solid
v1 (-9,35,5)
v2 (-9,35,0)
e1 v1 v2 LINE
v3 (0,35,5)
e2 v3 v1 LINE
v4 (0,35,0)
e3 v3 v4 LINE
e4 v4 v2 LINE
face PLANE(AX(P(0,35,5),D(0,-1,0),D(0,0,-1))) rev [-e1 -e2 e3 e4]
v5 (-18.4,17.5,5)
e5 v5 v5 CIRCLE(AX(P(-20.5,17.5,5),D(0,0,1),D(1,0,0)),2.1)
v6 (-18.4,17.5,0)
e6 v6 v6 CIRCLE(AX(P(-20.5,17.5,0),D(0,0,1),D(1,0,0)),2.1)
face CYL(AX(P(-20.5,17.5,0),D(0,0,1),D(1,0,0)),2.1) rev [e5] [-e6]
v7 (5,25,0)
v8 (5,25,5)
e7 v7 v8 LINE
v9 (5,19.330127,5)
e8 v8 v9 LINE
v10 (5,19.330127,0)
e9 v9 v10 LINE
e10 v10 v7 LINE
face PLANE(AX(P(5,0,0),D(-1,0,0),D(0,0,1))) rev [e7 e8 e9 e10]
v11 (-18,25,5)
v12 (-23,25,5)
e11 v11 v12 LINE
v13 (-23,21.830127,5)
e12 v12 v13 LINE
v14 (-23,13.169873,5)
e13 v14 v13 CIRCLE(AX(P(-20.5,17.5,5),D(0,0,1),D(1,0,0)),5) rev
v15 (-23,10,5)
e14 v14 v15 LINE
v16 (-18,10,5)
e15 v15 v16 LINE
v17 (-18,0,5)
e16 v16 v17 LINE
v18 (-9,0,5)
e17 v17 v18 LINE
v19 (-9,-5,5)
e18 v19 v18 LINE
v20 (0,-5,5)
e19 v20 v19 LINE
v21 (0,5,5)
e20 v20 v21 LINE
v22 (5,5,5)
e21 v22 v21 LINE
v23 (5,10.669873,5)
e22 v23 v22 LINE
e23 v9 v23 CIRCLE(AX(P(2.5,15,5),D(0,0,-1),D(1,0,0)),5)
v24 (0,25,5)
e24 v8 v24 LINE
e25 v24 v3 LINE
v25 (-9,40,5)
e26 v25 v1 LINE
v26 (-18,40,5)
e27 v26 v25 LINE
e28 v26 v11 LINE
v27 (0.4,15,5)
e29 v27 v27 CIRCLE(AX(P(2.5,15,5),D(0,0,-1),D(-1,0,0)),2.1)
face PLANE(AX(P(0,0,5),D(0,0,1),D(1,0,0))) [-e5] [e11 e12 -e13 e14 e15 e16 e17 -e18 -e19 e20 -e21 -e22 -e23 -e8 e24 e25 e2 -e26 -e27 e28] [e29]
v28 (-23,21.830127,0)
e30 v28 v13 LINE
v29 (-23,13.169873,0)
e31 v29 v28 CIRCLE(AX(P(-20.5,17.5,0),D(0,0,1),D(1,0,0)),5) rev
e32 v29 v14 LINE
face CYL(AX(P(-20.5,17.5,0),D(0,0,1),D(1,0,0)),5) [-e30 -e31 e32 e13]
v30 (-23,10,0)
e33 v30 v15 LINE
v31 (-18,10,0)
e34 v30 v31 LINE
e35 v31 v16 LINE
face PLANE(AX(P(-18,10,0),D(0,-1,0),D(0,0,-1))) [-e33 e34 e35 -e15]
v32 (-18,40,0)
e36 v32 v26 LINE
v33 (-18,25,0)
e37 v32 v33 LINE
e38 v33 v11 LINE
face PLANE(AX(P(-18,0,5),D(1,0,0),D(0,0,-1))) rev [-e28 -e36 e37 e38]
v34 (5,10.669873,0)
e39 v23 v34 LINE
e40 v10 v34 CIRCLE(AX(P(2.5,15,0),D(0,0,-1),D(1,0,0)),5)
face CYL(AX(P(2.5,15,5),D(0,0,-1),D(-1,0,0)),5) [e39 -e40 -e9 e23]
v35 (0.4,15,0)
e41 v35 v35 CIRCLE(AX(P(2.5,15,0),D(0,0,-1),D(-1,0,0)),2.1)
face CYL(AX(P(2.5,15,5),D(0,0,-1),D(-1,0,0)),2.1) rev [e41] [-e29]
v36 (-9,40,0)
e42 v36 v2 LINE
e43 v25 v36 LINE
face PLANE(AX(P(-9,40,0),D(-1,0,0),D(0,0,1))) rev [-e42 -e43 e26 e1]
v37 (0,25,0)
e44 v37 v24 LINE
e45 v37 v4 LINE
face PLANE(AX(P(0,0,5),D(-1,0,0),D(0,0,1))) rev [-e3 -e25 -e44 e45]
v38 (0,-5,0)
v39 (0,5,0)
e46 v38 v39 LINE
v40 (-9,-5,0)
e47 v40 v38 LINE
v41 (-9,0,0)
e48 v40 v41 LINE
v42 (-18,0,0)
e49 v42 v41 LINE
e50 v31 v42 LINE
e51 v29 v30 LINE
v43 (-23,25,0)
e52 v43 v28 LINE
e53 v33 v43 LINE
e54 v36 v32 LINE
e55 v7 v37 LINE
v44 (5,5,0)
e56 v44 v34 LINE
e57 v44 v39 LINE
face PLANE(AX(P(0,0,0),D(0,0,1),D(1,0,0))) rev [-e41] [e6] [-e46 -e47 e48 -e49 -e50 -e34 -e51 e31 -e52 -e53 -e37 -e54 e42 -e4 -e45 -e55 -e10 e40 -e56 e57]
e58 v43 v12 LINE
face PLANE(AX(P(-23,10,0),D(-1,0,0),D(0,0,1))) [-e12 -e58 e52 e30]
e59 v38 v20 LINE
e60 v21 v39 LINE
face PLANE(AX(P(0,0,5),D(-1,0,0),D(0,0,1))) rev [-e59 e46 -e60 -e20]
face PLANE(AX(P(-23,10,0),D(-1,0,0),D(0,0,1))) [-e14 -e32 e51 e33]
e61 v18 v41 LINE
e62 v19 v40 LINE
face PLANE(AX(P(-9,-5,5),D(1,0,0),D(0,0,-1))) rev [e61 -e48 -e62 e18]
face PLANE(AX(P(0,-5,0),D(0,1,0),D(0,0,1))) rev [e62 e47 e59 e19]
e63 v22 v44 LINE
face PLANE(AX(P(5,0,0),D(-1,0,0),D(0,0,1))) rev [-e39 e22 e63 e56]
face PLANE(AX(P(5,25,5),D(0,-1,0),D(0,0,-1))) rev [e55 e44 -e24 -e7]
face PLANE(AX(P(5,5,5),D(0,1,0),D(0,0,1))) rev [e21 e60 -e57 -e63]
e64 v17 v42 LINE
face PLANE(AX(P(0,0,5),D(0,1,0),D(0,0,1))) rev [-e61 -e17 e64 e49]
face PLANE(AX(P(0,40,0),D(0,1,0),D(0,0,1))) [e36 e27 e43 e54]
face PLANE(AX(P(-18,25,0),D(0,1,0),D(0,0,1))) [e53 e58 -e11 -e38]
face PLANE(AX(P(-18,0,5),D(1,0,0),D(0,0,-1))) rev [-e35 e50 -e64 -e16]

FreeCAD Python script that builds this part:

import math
import FreeCAD as App
import Part
import Sketcher
Q = App.Units.Quantity


def add_polygon(sketch, points):
    """Adds a closed chain of lines whose ends are joined by coincident constraints."""
    first, n = sketch.GeometryCount, len(points)
    for a, b in zip(points, points[1:] + points[:1]):
        sketch.addGeometry(Part.LineSegment(App.Vector(*a, 0), App.Vector(*b, 0)), False)
    for i in range(n):
        sketch.addConstraint(Sketcher.Constraint("Coincident", first + i, 2, first + (i + 1) % n, 1))

doc = App.newDocument("Part")
body = doc.addObject("PartDesign::Body", "Body")

# Sketch on XY plane
sketch1 = body.newObject("Sketcher::SketchObject", "Sketch")
sketch1.AttachmentSupport = (doc.getObject("XY_Plane"), [""])
sketch1.MapMode = "FlatFace"
add_polygon(sketch1, [(-18, 35), (-18, 0), (0, 0), (0, 35)])  # lines 0-3
sketch1.addConstraint([
    Sketcher.Constraint("Vertical", 0),
    Sketcher.Constraint("Horizontal", 1),
    Sketcher.Constraint("Vertical", 2),
    Sketcher.Constraint("Horizontal", 3),
    Sketcher.Constraint("Coincident", 1, 2, -1, 1),
    Sketcher.Constraint("DistanceX", 1, 1, 1, 2, Q("18 mm")),
    Sketcher.Constraint("DistanceY", 0, 2, 0, 1, Q("35 mm")),
])
pad1 = body.newObject("PartDesign::Pad", "Pad")
pad1.Profile = sketch1
pad1.Length = 5

# Sketch on YZ plane
sketch2 = body.newObject("Sketcher::SketchObject", "Sketch001")
sketch2.AttachmentSupport = (doc.getObject("YZ_Plane"), [""])
sketch2.MapMode = "FlatFace"
add_polygon(sketch2, [(25, 5), (5, 5), (5, 0), (25, 0)])  # lines 0-3
sketch2.addConstraint([
    Sketcher.Constraint("Horizontal", 0),
    Sketcher.Constraint("Vertical", 1),
    Sketcher.Constraint("Horizontal", 2),
    Sketcher.Constraint("Vertical", 3),
    Sketcher.Constraint("PointOnObject", 1, 2, -1),
    Sketcher.Constraint("DistanceX", 0, 2, 0, 1, Q("20 mm")),
    Sketcher.Constraint("DistanceY", 1, 2, 1, 1, Q("5 mm")),
    Sketcher.Constraint("DistanceX", -1, 1, 0, 2, Q("5 mm")),
])
pad2 = body.newObject("PartDesign::Pad", "Pad001")
pad2.Profile = sketch2
pad2.Length = 5

# Sketch on XZ plane
sketch3 = body.newObject("Sketcher::SketchObject", "Sketch002")
sketch3.AttachmentSupport = (doc.getObject("XZ_Plane"), [""])
sketch3.MapMode = "FlatFace"
add_polygon(sketch3, [(-9, 5), (-9, 0), (0, 0), (0, 5)])  # lines 0-3
sketch3.addConstraint([
    Sketcher.Constraint("Vertical", 0),
    Sketcher.Constraint("Horizontal", 1),
    Sketcher.Constraint("Vertical", 2),
    Sketcher.Constraint("Horizontal", 3),
    Sketcher.Constraint("Coincident", 1, 2, -1, 1),
    Sketcher.Constraint("DistanceX", 1, 1, 1, 2, Q("9 mm")),
    Sketcher.Constraint("DistanceY", 0, 2, 0, 1, Q("5 mm")),
])
pad3 = body.newObject("PartDesign::Pad", "Pad002")
pad3.Profile = sketch3
pad3.Length = 5

# Sketch on XY plane
sketch4 = body.newObject("Sketcher::SketchObject", "Sketch003")
sketch4.AttachmentSupport = (doc.getObject("XY_Plane"), [""])
sketch4.MapMode = "FlatFace"
sketch4.AttachmentOffset = App.Placement(App.Vector(0, 0, 5), App.Rotation())
add_polygon(sketch4, [(-23, 25), (-23, 10), (-18, 10), (-18, 25)])  # lines 0-3
sketch4.addConstraint([
    Sketcher.Constraint("Vertical", 0),
    Sketcher.Constraint("Horizontal", 1),
    Sketcher.Constraint("Vertical", 2),
    Sketcher.Constraint("Horizontal", 3),
    Sketcher.Constraint("DistanceX", 1, 1, 1, 2, Q("5 mm")),
    Sketcher.Constraint("DistanceY", 0, 2, 0, 1, Q("15 mm")),
    Sketcher.Constraint("DistanceX", 0, 2, -1, 1, Q("23 mm")),
    Sketcher.Constraint("DistanceY", -1, 1, 0, 2, Q("10 mm")),
])
pad4 = body.newObject("PartDesign::Pad", "Pad003")
pad4.Profile = sketch4
pad4.Length = 5
pad4.Reversed = True

# Sketch on XZ plane
sketch5 = body.newObject("Sketcher::SketchObject", "Sketch004")
sketch5.AttachmentSupport = (doc.getObject("XZ_Plane"), [""])
sketch5.MapMode = "FlatFace"
sketch5.AttachmentOffset = App.Placement(App.Vector(0, 0, -35), App.Rotation())
add_polygon(sketch5, [(-18, 0), (-18, 5), (-9, 5), (-9, 0)])  # lines 0-3
sketch5.addConstraint([
    Sketcher.Constraint("Vertical", 0),
    Sketcher.Constraint("Horizontal", 1),
    Sketcher.Constraint("Vertical", 2),
    Sketcher.Constraint("Horizontal", 3),
    Sketcher.Constraint("PointOnObject", 2, 2, -1),
    Sketcher.Constraint("DistanceX", 1, 1, 1, 2, Q("9 mm")),
    Sketcher.Constraint("DistanceY", 0, 1, 0, 2, Q("5 mm")),
    Sketcher.Constraint("DistanceX", 0, 2, -1, 1, Q("18 mm")),
])
pad5 = body.newObject("PartDesign::Pad", "Pad004")
pad5.Profile = sketch5
pad5.Length = 5
pad5.Reversed = True

# Sketch on XY plane
sketch6 = body.newObject("Sketcher::SketchObject", "Sketch005")
sketch6.AttachmentSupport = (doc.getObject("XY_Plane"), [""])
sketch6.MapMode = "FlatFace"
sketch6.addGeometry(Part.Circle(App.Vector(2.5, 15, 0), App.Vector(0, 0, 1), 2.1), False)
sketch6.addConstraint([
    Sketcher.Constraint("Diameter", 0, Q("4.2 mm")),
    Sketcher.Constraint("DistanceY", -1, 1, 0, 3, Q("15 mm")),
    Sketcher.Constraint("DistanceX", -1, 1, 0, 3, Q("2.5 mm")),
])
pocket1 = body.newObject("PartDesign::Pocket", "Pocket")
pocket1.Profile = sketch6
pocket1.Length = 5
pocket1.Reversed = True

# Sketch on XY plane
sketch7 = body.newObject("Sketcher::SketchObject", "Sketch006")
sketch7.AttachmentSupport = (doc.getObject("XY_Plane"), [""])
sketch7.MapMode = "FlatFace"
sketch7.addGeometry([
    Part.LineSegment(App.Vector(5, 11, 0), App.Vector(5, 19, 0)),
    Part.ArcOfCircle(Part.Circle(App.Vector(2, 15, 0), App.Vector(0, 0, 1), 5), math.radians(-60), math.radians(60)),
], False)
sketch7.addConstraint([
    Sketcher.Constraint("Coincident", 0, 1, 1, 1),
    Sketcher.Constraint("Coincident", 1, 2, 0, 2),
    Sketcher.Constraint("Vertical", 0),
    Sketcher.Constraint("Radius", 1, Q("5 mm")),
    Sketcher.Constraint("DistanceY", -1, 1, 1, 3, Q("15 mm")),
    Sketcher.Constraint("DistanceX", -1, 1, 0, 1, Q("5 mm")),
    Sketcher.Constraint("DistanceX", -1, 1, 1, 3, Q("2.5 mm")),
])
pad6 = body.newObject("PartDesign::Pad", "Pad005")
pad6.Profile = sketch7
pad6.Length = 5

# Sketch on XY plane
sketch8 = body.newObject("Sketcher::SketchObject", "Sketch007")
sketch8.AttachmentSupport = (doc.getObject("XY_Plane"), [""])
sketch8.MapMode = "FlatFace"
sketch8.AttachmentOffset = App.Placement(App.Vector(0, 0, 5), App.Rotation())
sketch8.addGeometry(Part.Circle(App.Vector(-20.5, 17.5, 0), App.Vector(0, 0, 1), 2.1), False)
sketch8.addConstraint([
    Sketcher.Constraint("Diameter", 0, Q("4.2 mm")),
    Sketcher.Constraint("DistanceX", 0, 3, -1, 1, Q("20.5 mm")),
    Sketcher.Constraint("DistanceY", -1, 1, 0, 3, Q("17.5 mm")),
])
pocket2 = body.newObject("PartDesign::Pocket", "Pocket001")
pocket2.Profile = sketch8
pocket2.Length = 5

# Sketch on XY plane
sketch9 = body.newObject("Sketcher::SketchObject", "Sketch008")
sketch9.AttachmentSupport = (doc.getObject("XY_Plane"), [""])
sketch9.MapMode = "FlatFace"
sketch9.AttachmentOffset = App.Placement(App.Vector(0, 0, 5), App.Rotation())
sketch9.addGeometry([
    Part.LineSegment(App.Vector(-23, 13, 0), App.Vector(-23, 22, 0)),
    Part.ArcOfCircle(Part.Circle(App.Vector(-20, 18, 0), App.Vector(0, 0, 1), 5), math.radians(120), math.radians(240)),
], False)
sketch9.addConstraint([
    Sketcher.Constraint("Coincident", 0, 1, 1, 2),
    Sketcher.Constraint("Coincident", 1, 1, 0, 2),
    Sketcher.Constraint("Vertical", 0),
    Sketcher.Constraint("Radius", 1, Q("5 mm")),
    Sketcher.Constraint("DistanceX", 0, 1, -1, 1, Q("23 mm")),
    Sketcher.Constraint("DistanceX", 1, 3, -1, 1, Q("20.5 mm")),
    Sketcher.Constraint("DistanceY", -1, 1, 1, 3, Q("17.5 mm")),
])
pad7 = body.newObject("PartDesign::Pad", "Pad006")
pad7.Profile = sketch9
pad7.Length = 5
pad7.Reversed = True

doc.recompute()
